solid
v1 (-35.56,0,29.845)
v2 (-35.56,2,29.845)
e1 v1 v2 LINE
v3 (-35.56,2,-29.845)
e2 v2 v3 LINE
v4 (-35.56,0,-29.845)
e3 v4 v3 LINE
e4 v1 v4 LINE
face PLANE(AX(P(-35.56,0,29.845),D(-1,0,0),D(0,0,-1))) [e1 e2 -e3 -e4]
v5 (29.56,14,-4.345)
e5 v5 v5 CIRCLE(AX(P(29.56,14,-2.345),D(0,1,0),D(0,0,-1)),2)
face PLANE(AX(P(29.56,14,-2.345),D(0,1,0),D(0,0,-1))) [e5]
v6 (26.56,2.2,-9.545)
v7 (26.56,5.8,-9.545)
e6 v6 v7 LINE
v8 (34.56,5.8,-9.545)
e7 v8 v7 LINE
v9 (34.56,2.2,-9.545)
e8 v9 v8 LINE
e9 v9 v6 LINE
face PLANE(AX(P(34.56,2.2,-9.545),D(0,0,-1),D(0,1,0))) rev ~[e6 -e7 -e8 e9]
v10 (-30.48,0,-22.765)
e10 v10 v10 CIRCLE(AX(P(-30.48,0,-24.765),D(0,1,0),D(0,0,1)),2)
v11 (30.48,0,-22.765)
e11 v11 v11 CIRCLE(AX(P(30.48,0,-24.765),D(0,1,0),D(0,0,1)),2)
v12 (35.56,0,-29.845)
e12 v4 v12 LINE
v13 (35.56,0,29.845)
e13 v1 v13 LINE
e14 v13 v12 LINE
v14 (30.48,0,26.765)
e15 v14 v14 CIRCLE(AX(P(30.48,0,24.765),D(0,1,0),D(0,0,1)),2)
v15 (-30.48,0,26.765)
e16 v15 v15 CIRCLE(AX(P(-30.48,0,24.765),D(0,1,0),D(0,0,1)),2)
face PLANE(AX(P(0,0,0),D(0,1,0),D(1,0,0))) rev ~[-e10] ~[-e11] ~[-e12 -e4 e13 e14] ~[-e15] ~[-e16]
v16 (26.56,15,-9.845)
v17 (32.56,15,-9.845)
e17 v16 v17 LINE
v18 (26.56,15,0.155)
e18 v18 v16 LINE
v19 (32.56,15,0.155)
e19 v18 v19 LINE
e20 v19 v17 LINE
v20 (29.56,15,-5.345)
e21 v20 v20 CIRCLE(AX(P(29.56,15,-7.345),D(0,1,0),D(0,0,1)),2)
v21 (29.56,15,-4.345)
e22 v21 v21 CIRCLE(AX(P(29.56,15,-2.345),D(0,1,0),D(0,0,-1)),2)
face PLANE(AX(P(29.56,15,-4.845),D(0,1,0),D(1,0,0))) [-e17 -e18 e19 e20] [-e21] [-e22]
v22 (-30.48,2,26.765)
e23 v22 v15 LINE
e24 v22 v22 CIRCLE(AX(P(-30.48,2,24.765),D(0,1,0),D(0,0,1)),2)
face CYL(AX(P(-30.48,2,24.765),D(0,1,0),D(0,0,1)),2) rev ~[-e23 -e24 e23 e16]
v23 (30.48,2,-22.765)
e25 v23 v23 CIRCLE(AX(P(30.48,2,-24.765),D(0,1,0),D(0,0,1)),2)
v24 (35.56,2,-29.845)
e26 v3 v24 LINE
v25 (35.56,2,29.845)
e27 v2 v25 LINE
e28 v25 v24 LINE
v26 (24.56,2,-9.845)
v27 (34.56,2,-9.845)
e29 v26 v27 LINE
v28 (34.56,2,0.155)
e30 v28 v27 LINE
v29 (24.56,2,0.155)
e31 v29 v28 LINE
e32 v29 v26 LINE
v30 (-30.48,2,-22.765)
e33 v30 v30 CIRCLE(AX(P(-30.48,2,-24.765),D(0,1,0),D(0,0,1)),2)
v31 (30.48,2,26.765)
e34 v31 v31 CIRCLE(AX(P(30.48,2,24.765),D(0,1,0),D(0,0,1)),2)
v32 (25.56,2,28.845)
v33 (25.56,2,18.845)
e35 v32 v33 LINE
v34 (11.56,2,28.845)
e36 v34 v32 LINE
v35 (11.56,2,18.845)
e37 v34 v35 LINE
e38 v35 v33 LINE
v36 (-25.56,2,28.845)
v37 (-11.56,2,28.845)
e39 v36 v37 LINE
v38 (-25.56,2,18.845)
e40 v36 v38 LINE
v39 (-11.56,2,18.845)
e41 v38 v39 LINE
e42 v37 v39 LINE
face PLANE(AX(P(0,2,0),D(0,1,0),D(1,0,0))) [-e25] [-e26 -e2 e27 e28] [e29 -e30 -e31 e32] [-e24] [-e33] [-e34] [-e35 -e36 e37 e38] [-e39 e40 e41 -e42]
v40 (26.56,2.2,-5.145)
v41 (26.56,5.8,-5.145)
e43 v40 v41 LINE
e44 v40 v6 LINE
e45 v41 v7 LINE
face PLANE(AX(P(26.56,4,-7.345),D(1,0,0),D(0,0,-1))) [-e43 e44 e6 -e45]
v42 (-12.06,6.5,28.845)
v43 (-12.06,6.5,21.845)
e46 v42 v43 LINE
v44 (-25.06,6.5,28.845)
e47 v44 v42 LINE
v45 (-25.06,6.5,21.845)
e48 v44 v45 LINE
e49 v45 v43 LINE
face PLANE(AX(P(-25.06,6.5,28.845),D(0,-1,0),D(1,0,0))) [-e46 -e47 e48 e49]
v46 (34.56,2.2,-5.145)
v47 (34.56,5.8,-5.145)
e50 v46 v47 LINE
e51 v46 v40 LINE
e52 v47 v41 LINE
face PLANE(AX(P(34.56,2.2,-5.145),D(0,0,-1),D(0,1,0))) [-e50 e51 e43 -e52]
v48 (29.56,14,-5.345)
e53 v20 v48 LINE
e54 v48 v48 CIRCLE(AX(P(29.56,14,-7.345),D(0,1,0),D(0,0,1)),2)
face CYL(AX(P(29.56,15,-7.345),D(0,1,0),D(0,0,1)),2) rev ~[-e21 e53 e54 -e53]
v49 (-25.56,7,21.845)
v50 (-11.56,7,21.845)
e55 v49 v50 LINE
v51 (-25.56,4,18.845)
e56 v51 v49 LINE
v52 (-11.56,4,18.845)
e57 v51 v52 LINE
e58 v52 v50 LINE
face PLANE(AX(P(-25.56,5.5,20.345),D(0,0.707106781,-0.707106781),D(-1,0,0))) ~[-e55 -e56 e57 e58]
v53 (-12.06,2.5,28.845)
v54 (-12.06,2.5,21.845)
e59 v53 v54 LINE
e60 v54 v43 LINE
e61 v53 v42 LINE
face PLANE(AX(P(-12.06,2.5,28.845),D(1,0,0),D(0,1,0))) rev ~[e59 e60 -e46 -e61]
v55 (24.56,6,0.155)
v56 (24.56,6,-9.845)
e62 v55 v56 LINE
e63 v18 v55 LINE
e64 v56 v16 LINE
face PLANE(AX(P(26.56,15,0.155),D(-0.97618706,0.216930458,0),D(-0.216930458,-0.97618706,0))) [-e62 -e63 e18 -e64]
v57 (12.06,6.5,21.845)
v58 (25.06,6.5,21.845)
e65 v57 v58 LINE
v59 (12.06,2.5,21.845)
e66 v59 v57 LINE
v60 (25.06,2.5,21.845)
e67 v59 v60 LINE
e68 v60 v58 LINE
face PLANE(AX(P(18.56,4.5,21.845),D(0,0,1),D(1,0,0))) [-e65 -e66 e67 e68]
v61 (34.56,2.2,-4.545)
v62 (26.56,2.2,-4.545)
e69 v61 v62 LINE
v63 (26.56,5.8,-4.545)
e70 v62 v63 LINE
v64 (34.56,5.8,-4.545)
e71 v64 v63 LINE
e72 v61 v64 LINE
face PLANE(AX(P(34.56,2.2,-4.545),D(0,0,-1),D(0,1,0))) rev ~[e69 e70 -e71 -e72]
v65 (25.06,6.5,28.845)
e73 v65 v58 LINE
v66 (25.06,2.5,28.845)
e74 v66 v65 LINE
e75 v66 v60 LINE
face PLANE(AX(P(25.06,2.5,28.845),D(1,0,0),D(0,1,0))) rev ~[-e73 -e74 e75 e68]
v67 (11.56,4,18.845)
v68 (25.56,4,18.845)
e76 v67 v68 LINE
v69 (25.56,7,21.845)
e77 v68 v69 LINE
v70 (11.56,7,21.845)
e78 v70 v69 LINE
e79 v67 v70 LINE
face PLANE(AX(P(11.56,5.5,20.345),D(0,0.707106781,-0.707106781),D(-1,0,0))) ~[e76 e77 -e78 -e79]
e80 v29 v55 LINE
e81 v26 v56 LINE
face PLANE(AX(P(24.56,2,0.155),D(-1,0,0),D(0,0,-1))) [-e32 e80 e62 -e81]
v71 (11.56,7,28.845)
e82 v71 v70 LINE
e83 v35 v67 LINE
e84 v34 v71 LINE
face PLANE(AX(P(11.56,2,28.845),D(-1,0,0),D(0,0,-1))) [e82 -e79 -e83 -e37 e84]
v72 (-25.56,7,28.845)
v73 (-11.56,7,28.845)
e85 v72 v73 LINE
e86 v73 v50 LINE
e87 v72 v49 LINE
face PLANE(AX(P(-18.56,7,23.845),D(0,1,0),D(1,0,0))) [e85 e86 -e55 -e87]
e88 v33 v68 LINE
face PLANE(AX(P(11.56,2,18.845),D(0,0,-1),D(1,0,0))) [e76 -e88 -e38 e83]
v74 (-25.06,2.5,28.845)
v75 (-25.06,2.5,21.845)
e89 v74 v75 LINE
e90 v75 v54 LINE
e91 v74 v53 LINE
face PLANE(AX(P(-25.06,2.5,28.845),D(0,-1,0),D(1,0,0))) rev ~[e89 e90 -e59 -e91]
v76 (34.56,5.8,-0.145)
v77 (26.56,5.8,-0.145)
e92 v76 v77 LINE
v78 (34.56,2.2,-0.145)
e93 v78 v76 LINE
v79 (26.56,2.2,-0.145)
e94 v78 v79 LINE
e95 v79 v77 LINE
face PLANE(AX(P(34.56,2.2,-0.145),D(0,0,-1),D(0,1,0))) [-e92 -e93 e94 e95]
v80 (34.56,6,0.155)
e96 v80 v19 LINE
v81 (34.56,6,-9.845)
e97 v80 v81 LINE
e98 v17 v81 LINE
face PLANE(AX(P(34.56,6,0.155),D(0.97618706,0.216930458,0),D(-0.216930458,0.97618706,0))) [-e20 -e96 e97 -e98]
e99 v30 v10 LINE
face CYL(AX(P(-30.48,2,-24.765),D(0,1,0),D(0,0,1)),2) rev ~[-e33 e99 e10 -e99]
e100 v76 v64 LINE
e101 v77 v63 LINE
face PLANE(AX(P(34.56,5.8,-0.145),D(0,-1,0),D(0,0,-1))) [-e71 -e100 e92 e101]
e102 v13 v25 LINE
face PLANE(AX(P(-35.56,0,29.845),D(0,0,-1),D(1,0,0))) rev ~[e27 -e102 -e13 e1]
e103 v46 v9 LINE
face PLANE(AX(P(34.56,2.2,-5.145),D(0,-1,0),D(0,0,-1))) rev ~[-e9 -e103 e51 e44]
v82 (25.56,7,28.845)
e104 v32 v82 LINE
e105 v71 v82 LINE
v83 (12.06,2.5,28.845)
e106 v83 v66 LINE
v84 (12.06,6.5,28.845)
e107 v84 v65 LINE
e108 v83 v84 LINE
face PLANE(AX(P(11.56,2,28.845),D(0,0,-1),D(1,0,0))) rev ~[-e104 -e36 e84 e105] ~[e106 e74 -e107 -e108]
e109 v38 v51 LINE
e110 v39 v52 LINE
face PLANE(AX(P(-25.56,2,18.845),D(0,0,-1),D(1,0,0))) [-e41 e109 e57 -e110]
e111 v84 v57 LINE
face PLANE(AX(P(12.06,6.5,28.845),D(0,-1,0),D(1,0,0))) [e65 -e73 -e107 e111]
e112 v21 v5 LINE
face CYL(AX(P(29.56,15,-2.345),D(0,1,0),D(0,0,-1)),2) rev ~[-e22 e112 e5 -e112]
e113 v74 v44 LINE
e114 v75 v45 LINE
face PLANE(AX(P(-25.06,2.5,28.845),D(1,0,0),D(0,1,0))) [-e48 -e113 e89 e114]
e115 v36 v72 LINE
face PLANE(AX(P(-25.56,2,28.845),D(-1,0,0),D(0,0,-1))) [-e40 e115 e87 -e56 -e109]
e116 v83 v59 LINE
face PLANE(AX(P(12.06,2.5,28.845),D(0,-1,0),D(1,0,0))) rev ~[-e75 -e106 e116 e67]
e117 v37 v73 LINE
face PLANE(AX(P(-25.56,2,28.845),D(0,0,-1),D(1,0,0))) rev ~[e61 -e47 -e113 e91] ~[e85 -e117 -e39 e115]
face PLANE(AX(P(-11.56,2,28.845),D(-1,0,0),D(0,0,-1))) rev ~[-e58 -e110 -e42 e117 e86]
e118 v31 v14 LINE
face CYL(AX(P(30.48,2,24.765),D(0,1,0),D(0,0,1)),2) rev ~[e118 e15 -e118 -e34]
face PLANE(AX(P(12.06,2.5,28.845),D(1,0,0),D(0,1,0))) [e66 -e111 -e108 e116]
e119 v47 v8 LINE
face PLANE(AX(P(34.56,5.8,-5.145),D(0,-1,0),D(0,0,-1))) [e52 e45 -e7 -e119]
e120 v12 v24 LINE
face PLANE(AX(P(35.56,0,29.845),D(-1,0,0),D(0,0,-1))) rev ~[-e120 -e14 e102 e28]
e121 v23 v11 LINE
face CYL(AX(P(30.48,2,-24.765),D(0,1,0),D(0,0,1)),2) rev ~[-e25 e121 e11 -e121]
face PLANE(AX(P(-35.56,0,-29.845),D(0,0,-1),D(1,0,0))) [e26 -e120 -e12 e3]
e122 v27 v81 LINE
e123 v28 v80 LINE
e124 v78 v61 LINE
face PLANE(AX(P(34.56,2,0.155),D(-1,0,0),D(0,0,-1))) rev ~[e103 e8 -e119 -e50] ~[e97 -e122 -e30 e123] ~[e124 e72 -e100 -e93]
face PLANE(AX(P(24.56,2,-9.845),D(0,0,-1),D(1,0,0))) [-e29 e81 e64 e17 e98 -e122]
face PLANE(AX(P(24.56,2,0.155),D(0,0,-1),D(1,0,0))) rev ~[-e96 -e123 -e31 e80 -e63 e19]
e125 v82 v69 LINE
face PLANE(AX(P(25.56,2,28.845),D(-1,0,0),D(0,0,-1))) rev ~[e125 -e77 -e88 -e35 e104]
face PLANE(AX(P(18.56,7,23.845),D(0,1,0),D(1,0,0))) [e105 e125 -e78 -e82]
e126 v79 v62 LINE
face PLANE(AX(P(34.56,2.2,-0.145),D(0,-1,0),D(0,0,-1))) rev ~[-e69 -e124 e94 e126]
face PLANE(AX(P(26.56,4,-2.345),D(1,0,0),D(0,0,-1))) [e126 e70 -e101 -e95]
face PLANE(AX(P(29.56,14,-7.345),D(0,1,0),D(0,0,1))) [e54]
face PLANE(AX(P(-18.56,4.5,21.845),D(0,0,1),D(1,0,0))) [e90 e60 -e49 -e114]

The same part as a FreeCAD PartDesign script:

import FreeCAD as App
import Part
import Sketcher


def edges_at(feature, points):
    """Names of the edges that pass closest to the given points."""
    edges = feature.Shape.Edges
    near = lambda p: min(range(len(edges)), key=lambda i: edges[i].distToShape(Part.Vertex(*p))[0])
    return sorted({f"Edge{near(p) + 1}" for p in points})


def add_polygon(sketch, points):
    """Adds a closed chain of lines whose ends are joined by coincident constraints."""
    first, n = sketch.GeometryCount, len(points)
    for a, b in zip(points, points[1:] + points[:1]):
        sketch.addGeometry(Part.LineSegment(App.Vector(*a, 0), App.Vector(*b, 0)), False)
    for i in range(n):
        sketch.addConstraint(Sketcher.Constraint("Coincident", first + i, 2, first + (i + 1) % n, 1))

doc = App.newDocument("Part")
params = doc.addObject("Spreadsheet::Sheet", "Params")
for row, (alias, value) in enumerate([
    ("sketch1_width", "71.12 mm"),
    ("sketch1_height", "59.69 mm"),
    ("pad1_length", "2 mm"),
    ("sketch2_diameter", "4 mm"),
    ("pocket1_length", "2 mm"),
    ("sketch3_width", "14 mm"),
    ("sketch3_height", "10 mm"),
    ("pad2_length", "5 mm"),
    ("sketch4_width", "10 mm"),
    ("pad3_length", "13 mm"),
    ("sketch5_width", "2 mm"),
    ("sketch5_height", "9 mm"),
    ("sketch6_width", "13 mm"),
    ("sketch6_height", "4 mm"),
    ("pocket3_length", "7 mm"),
    ("chamfer_size", "3 mm"),
    ("sketch7_width", "3.6 mm"),
    ("sketch7_height", "4.4 mm"),
    ("pocket4_length", "8 mm"),
    ("sketch8_diameter", "4 mm"),
    ("pocket5_length", "1 mm"),
], start=1):
    params.set(f"A{row}", alias)
    params.set(f"B{row}", "=" + value)
    params.setAlias(f"B{row}", alias)

body = doc.addObject("PartDesign::Body", "Body")

# Sketch on XZ plane
sketch1 = doc.addObject("Sketcher::SketchObject", "Sketch")
body.addObject(sketch1)
sketch1.AttachmentSupport = (doc.XZ_Plane, [""])
sketch1.MapMode = "FlatFace"
add_polygon(sketch1, [(-36, -30), (-36, 30), (36, 30), (36, -30)])  # lines 0-3
sketch1.addConstraint([
    Sketcher.Constraint("Vertical", 0),
    Sketcher.Constraint("Horizontal", 1),
    Sketcher.Constraint("Vertical", 2),
    Sketcher.Constraint("Horizontal", 3),
    Sketcher.Constraint("Symmetric", 0, 2, 2, 2, -1, 1),
    Sketcher.Constraint("DistanceX", 1, 1, 1, 2, 71.12),
    Sketcher.Constraint("DistanceY", 0, 1, 0, 2, 59.69),
])
sketch1.setExpression("Constraints[9]", "Params.sketch1_width")
sketch1.setExpression("Constraints[10]", "Params.sketch1_height")
pad1 = doc.addObject("PartDesign::Pad", "Pad")
body.addObject(pad1)
pad1.Profile = sketch1
pad1.setExpression("Length", "Params.pad1_length")
pad1.Reversed = True

# Sketch on XZ plane
sketch2 = doc.addObject("Sketcher::SketchObject", "Sketch001")
body.addObject(sketch2)
sketch2.AttachmentSupport = (doc.XZ_Plane, [""])
sketch2.MapMode = "FlatFace"
sketch2.AttachmentOffset = App.Placement(App.Vector(0, 0, -2), App.Rotation())
sketch2.addGeometry([
    Part.Circle(App.Vector(-30.5, -24.8, 0), App.Vector(0, 0, 1), 2),
    Part.Circle(App.Vector(30.5, -24.8, 0), App.Vector(0, 0, 1), 2),
    Part.Circle(App.Vector(30.5, 24.8, 0), App.Vector(0, 0, 1), 2),
    Part.Circle(App.Vector(-30.5, 24.8, 0), App.Vector(0, 0, 1), 2),
], False)
sketch2.addConstraint([
    Sketcher.Constraint("Equal", 0, 1),
    Sketcher.Constraint("Equal", 1, 2),
    Sketcher.Constraint("Equal", 2, 3),
    Sketcher.Constraint("Symmetric", 0, 3, 2, 3, -1, 1),
    Sketcher.Constraint("Symmetric", 1, 3, 3, 3, -1, 1),
    Sketcher.Constraint("Symmetric", 0, 3, 1, 3, -2),
    Sketcher.Constraint("Diameter", 0, 4.0),
    Sketcher.Constraint("DistanceX", 0, 3, -1, 1, 30.48),
    Sketcher.Constraint("DistanceY", 1, 3, 2, 3, 49.53),
])
sketch2.setExpression("Constraints[6]", "Params.sketch2_diameter")
pocket1 = doc.addObject("PartDesign::Pocket", "Pocket")
body.addObject(pocket1)
pocket1.Profile = sketch2
pocket1.setExpression("Length", "Params.pocket1_length")
pocket1.Reversed = True

# Sketch on XZ plane
sketch3 = doc.addObject("Sketcher::SketchObject", "Sketch002")
body.addObject(sketch3)
sketch3.AttachmentSupport = (doc.XZ_Plane, [""])
sketch3.MapMode = "FlatFace"
sketch3.AttachmentOffset = App.Placement(App.Vector(0, 0, -2), App.Rotation())
add_polygon(sketch3, [(-26, 19), (-26, 29), (-12, 29), (-12, 19)])  # lines 0-3
add_polygon(sketch3, [(12, 19), (12, 29), (26, 29), (26, 19)])  # lines 4-7
sketch3.addConstraint([
    Sketcher.Constraint("Vertical", 0),
    Sketcher.Constraint("Horizontal", 1),
    Sketcher.Constraint("Vertical", 2),
    Sketcher.Constraint("Horizontal", 3),
    Sketcher.Constraint("Vertical", 4),
    Sketcher.Constraint("Horizontal", 5),
    Sketcher.Constraint("Vertical", 6),
    Sketcher.Constraint("Horizontal", 7),
    Sketcher.Constraint("Symmetric", 1, 2, 4, 2, -2),
    Sketcher.Constraint("Symmetric", 3, 2, 6, 2, -2),
    Sketcher.Constraint("DistanceX", 1, 1, 1, 2, 14.0),
    Sketcher.Constraint("DistanceY", 0, 1, 0, 2, 10.0),
    Sketcher.Constraint("DistanceX", 0, 2, -1, 1, 25.56),
    Sketcher.Constraint("DistanceY", -1, 1, 0, 2, 28.845),
])
sketch3.setExpression("Constraints[18]", "Params.sketch3_width")
sketch3.setExpression("Constraints[19]", "Params.sketch3_height")
pad2 = doc.addObject("PartDesign::Pad", "Pad001")
body.addObject(pad2)
pad2.Profile = sketch3
pad2.setExpression("Length", "Params.pad2_length")
pad2.Reversed = True

# Sketch on XZ plane
sketch4 = doc.addObject("Sketcher::SketchObject", "Sketch003")
body.addObject(sketch4)
sketch4.AttachmentSupport = (doc.XZ_Plane, [""])
sketch4.MapMode = "FlatFace"
sketch4.AttachmentOffset = App.Placement(App.Vector(0, 0, -2), App.Rotation())
add_polygon(sketch4, [(25, -10), (25, 0), (35, 0), (35, -10)])  # lines 0-3
sketch4.addConstraint([
    Sketcher.Constraint("Vertical", 0),
    Sketcher.Constraint("Horizontal", 1),
    Sketcher.Constraint("Vertical", 2),
    Sketcher.Constraint("Horizontal", 3),
    Sketcher.Constraint("Equal", 3, 0),
    Sketcher.Constraint("DistanceX", 1, 1, 1, 2, 10.0),
    Sketcher.Constraint("DistanceX", -1, 1, 0, 2, 24.56),
    Sketcher.Constraint("DistanceY", -1, 1, 0, 2, 0.155),
])
sketch4.setExpression("Constraints[9]", "Params.sketch4_width")
pad3 = doc.addObject("PartDesign::Pad", "Pad002")
body.addObject(pad3)
pad3.Profile = sketch4
pad3.setExpression("Length", "Params.pad3_length")
pad3.Reversed = True

# Sketch on XY plane
sketch5 = doc.addObject("Sketcher::SketchObject", "Sketch004")
body.addObject(sketch5)
sketch5.AttachmentSupport = (doc.XY_Plane, [""])
sketch5.MapMode = "FlatFace"
sketch5.AttachmentOffset = App.Placement(App.Vector(0, 0, 0.155), App.Rotation())
add_polygon(sketch5, [(24.6, 6), (26.6, 15), (24.6, 15)])  # lines 0-2
add_polygon(sketch5, [(32.6, 15), (34.6, 6), (34.6, 15)])  # lines 3-5
sketch5.addConstraint([
    Sketcher.Constraint("Horizontal", 1),
    Sketcher.Constraint("Vertical", 2),
    Sketcher.Constraint("Vertical", 4),
    Sketcher.Constraint("Horizontal", 5),
    Sketcher.Constraint("Horizontal", 2, 2, 3, 2),
    Sketcher.Constraint("Horizontal", 1, 2, 4, 2),
    Sketcher.Constraint("Equal", 1, 5),
    Sketcher.Constraint("DistanceX", 1, 2, 1, 1, 2.0),
    Sketcher.Constraint("DistanceY", 2, 2, 2, 1, 9.0),
    Sketcher.Constraint("DistanceY", -1, 1, 0, 2, 15.0),
    Sketcher.Constraint("DistanceX", 2, 2, 3, 2, 10.0),
    Sketcher.Constraint("DistanceX", -1, 1, 0, 2, 26.56),
])
sketch5.setExpression("Constraints[13]", "Params.sketch5_width")
sketch5.setExpression("Constraints[14]", "Params.sketch5_height")
pocket2 = doc.addObject("PartDesign::Pocket", "Pocket001")
body.addObject(pocket2)
pocket2.Profile = sketch5
pocket2.Type = "ThroughAll"

# Sketch on XY plane
sketch6 = doc.addObject("Sketcher::SketchObject", "Sketch005")
body.addObject(sketch6)
sketch6.AttachmentSupport = (doc.XY_Plane, [""])
sketch6.MapMode = "FlatFace"
sketch6.AttachmentOffset = App.Placement(App.Vector(0, 0, 28.845), App.Rotation())
add_polygon(sketch6, [(-25.1, 6.5), (-25.1, 2.5), (-12.1, 2.5), (-12.1, 6.5)])  # lines 0-3
add_polygon(sketch6, [(12.1, 6.5), (12.1, 2.5), (25.1, 2.5), (25.1, 6.5)])  # lines 4-7
sketch6.addConstraint([
    Sketcher.Constraint("Vertical", 0),
    Sketcher.Constraint("Horizontal", 1),
    Sketcher.Constraint("Vertical", 2),
    Sketcher.Constraint("Horizontal", 3),
    Sketcher.Constraint("Vertical", 4),
    Sketcher.Constraint("Horizontal", 5),
    Sketcher.Constraint("Vertical", 6),
    Sketcher.Constraint("Horizontal", 7),
    Sketcher.Constraint("Symmetric", 1, 2, 4, 2, -2),
    Sketcher.Constraint("Symmetric", 3, 2, 6, 2, -2),
    Sketcher.Constraint("DistanceX", 1, 1, 1, 2, 13.0),
    Sketcher.Constraint("DistanceY", 0, 2, 0, 1, 4.0),
    Sketcher.Constraint("DistanceY", -1, 1, 0, 2, 2.5),
    Sketcher.Constraint("DistanceX", 0, 2, -1, 1, 25.06),
])
sketch6.setExpression("Constraints[18]", "Params.sketch6_width")
sketch6.setExpression("Constraints[19]", "Params.sketch6_height")
pocket3 = doc.addObject("PartDesign::Pocket", "Pocket002")
body.addObject(pocket3)
pocket3.Profile = sketch6
pocket3.setExpression("Length", "Params.pocket3_length")
doc.recompute()

chamfer = doc.addObject("PartDesign::Chamfer", "Chamfer")
body.addObject(chamfer)
chamfer.Base = (pocket3, edges_at(pocket3, [(-18.56, 7, 18.845), (18.56, 7, 18.845)]))
chamfer.setExpression("Size", "Params.chamfer_size")

# Sketch on YZ plane
sketch7 = doc.addObject("Sketcher::SketchObject", "Sketch006")
body.addObject(sketch7)
sketch7.AttachmentSupport = (doc.YZ_Plane, [""])
sketch7.MapMode = "FlatFace"
sketch7.AttachmentOffset = App.Placement(App.Vector(0, 0, 34.56), App.Rotation())
add_polygon(sketch7, [(5.8, -5.1), (2.2, -5.1), (2.2, -9.5), (5.8, -9.5)])  # lines 0-3
add_polygon(sketch7, [(5.8, -0.1), (2.2, -0.1), (2.2, -4.5), (5.8, -4.5)])  # lines 4-7
sketch7.addConstraint([
    Sketcher.Constraint("Horizontal", 0),
    Sketcher.Constraint("Vertical", 1),
    Sketcher.Constraint("Horizontal", 2),
    Sketcher.Constraint("Vertical", 3),
    Sketcher.Constraint("Horizontal", 4),
    Sketcher.Constraint("Vertical", 5),
    Sketcher.Constraint("Horizontal", 6),
    Sketcher.Constraint("Vertical", 7),
    Sketcher.Constraint("Vertical", 1, 2, 4, 2),
    Sketcher.Constraint("Vertical", 3, 2, 6, 2),
    Sketcher.Constraint("Equal", 3, 5),
    Sketcher.Constraint("DistanceX", 0, 2, 0, 1, 3.6),
    Sketcher.Constraint("DistanceY", 1, 2, 1, 1, 4.4),
    Sketcher.Constraint("DistanceY", 0, 2, 4, 2, 5.0),
    Sketcher.Constraint("DistanceX", -1, 1, 0, 2, 2.2),
    Sketcher.Constraint("DistanceY", 0, 2, -1, 1, 5.145),
])
sketch7.setExpression("Constraints[19]", "Params.sketch7_width")
sketch7.setExpression("Constraints[20]", "Params.sketch7_height")
pocket4 = doc.addObject("PartDesign::Pocket", "Pocket003")
body.addObject(pocket4)
pocket4.Profile = sketch7
pocket4.setExpression("Length", "Params.pocket4_length")

# Sketch on XZ plane
sketch8 = doc.addObject("Sketcher::SketchObject", "Sketch007")
body.addObject(sketch8)
sketch8.AttachmentSupport = (doc.XZ_Plane, [""])
sketch8.MapMode = "FlatFace"
sketch8.AttachmentOffset = App.Placement(App.Vector(0, 0, -15), App.Rotation())
sketch8.addGeometry([
    Part.Circle(App.Vector(29.6, -7.3, 0), App.Vector(0, 0, 1), 2),
    Part.Circle(App.Vector(29.6, -2.3, 0), App.Vector(0, 0, 1), 2),
], False)
sketch8.addConstraint([
    Sketcher.Constraint("Equal", 0, 1),
    Sketcher.Constraint("Vertical", 0, 3, 1, 3),
    Sketcher.Constraint("Diameter", 0, 4.0),
    Sketcher.Constraint("DistanceY", 0, 3, 1, 3, 5.0),
    Sketcher.Constraint("DistanceX", -1, 1, 0, 3, 29.56),
    Sketcher.Constraint("DistanceY", 0, 3, -1, 1, 7.345),
])
sketch8.setExpression("Constraints[2]", "Params.sketch8_diameter")
pocket5 = doc.addObject("PartDesign::Pocket", "Pocket004")
body.addObject(pocket5)
pocket5.Profile = sketch8
pocket5.setExpression("Length", "Params.pocket5_length")
pocket5.Reversed = True

doc.recompute()
